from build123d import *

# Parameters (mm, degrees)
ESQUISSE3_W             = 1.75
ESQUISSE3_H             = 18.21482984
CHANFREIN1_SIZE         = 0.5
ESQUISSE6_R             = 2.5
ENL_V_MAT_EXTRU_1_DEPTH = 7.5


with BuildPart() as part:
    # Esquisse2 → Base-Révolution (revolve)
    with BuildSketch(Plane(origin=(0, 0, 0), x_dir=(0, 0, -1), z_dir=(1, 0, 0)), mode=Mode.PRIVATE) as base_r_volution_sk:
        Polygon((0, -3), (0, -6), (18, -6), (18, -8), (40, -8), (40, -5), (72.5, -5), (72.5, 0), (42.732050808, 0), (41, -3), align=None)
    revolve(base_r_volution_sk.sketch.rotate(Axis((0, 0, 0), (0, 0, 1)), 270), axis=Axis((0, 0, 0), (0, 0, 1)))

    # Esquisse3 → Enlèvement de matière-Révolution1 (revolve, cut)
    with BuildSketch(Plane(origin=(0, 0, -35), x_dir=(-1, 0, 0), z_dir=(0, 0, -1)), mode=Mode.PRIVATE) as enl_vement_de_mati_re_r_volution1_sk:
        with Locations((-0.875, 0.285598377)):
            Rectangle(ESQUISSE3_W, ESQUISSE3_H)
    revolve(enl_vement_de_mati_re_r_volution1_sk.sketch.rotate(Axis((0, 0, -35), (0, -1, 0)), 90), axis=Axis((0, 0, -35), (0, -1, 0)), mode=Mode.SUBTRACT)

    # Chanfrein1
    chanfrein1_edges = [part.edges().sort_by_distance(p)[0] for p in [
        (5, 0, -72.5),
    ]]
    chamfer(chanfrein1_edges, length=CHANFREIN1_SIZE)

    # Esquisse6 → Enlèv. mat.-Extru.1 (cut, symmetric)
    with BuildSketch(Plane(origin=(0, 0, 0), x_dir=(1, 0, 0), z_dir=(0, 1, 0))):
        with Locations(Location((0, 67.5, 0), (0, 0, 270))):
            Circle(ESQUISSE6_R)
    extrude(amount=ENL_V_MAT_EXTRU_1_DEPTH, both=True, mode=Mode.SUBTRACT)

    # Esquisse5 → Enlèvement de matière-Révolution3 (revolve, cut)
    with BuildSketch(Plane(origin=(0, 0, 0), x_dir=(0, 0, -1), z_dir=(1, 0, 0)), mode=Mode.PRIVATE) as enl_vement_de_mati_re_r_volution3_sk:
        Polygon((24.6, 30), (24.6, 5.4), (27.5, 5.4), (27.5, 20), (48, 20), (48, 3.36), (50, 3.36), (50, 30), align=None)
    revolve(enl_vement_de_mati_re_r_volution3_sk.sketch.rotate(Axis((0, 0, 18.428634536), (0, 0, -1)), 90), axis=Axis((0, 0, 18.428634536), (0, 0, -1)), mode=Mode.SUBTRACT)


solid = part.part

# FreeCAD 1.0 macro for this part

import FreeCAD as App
import Part
import Sketcher
from FreeCAD import Vector
Q = App.Units.Quantity


def edges_at(feature, points):
    """Names of the edges that pass closest to the given points."""
    edges = feature.Shape.Edges
    near = lambda p: min(range(len(edges)), key=lambda i: edges[i].distToShape(Part.Vertex(*p))[0])
    return sorted({f"Edge{near(p) + 1}" for p in points})


def add_polygon(sketch, points):
    """Adds a closed chain of lines whose ends are joined by coincident constraints."""
    first, n = sketch.GeometryCount, len(points)
    for a, b in zip(points, points[1:] + points[:1]):
        sketch.addGeometry(Part.LineSegment(App.Vector(*a, 0), App.Vector(*b, 0)), False)
    for i in range(n):
        sketch.addConstraint(Sketcher.Constraint("Coincident", first + i, 2, first + (i + 1) % n, 1))

doc = App.newDocument("Part")
body = doc.addObject("PartDesign::Body", "Body")

# Sketch on YZ plane
sketch1 = body.newObject("Sketcher::SketchObject", "Sketch")
sketch1.AttachmentSupport = (doc.getObject("YZ_Plane"), [""])
sketch1.MapMode = "FlatFace"
add_polygon(sketch1, [(-3, 0), (-6, 0), (-6, -18), (-8, -18), (-8, -40), (-5, -40), (-5, -72.5), (0, -72.5), (0, -42.7), (-3, -41)])  # lines 0-9
sketch1.addConstraint([
    Sketcher.Constraint("Horizontal", 0),
    Sketcher.Constraint("Vertical", 1),
    Sketcher.Constraint("Horizontal", 2),
    Sketcher.Constraint("Vertical", 3),
    Sketcher.Constraint("Horizontal", 4),
    Sketcher.Constraint("Vertical", 5),
    Sketcher.Constraint("Horizontal", 6),
    Sketcher.Constraint("Vertical", 7),
    Sketcher.Constraint("Vertical", 9),
    Sketcher.Constraint("PointOnObject", 0, 2, -1),
    Sketcher.Constraint("PointOnObject", 6, 2, -2),
    Sketcher.Constraint("Equal", 0, 4),
    Sketcher.Constraint("DistanceX", 0, 2, 0, 1, Q("3 mm")),
    Sketcher.Constraint("DistanceX", 2, 2, 2, 1, Q("2 mm")),
    Sketcher.Constraint("DistanceX", 6, 1, 6, 2, Q("5 mm")),
    Sketcher.Constraint("DistanceY", 1, 2, 1, 1, Q("18 mm")),
    Sketcher.Constraint("DistanceY", 3, 2, 3, 1, Q("22 mm")),
    Sketcher.Constraint("DistanceY", 9, 1, 9, 2, Q("41 mm")),
    Sketcher.Constraint("Angle", 8, Q("150 deg")),
    Sketcher.Constraint("DistanceY", 5, 2, 5, 1, Q("32.5 mm")),
])
revolution = body.newObject("PartDesign::Revolution", "Revolution")
revolution.Profile = sketch1
revolution.ReferenceAxis = (sketch1, ["V_Axis"])
revolution.Angle = 360

# Sketch on XY plane
sketch2 = body.newObject("Sketcher::SketchObject", "Sketch001")
sketch2.AttachmentSupport = (doc.getObject("XY_Plane"), [""])
sketch2.MapMode = "FlatFace"
sketch2.AttachmentOffset = App.Placement(Vector(0, 0, -35), App.Rotation())
add_polygon(sketch2, [(1.8, 9.4), (1.8, -8.8), (0, -8.8), (0, 9.4)])  # lines 0-3
sketch2.addConstraint([
    Sketcher.Constraint("Vertical", 0),
    Sketcher.Constraint("Horizontal", 1),
    Sketcher.Constraint("Vertical", 2),
    Sketcher.Constraint("Horizontal", 3),
    Sketcher.Constraint("PointOnObject", 1, 2, -2),
    Sketcher.Constraint("DistanceX", 1, 2, 1, 1, Q("1.75 mm")),
    Sketcher.Constraint("DistanceY", 0, 2, 0, 1, Q("18.21483 mm")),
    Sketcher.Constraint("DistanceY", 0, 2, -1, 1, Q("8.821817 mm")),
])
groove = body.newObject("PartDesign::Groove", "Groove")
groove.Profile = sketch2
groove.ReferenceAxis = (sketch2, ["V_Axis"])
groove.Angle = 360
doc.recompute()

chamfer = body.newObject("PartDesign::Chamfer", "Chamfer")
chamfer.Base = (groove, edges_at(groove, [(5, 0, -72.5)]))
chamfer.Size = 0.5

# Sketch on XZ plane
sketch3 = body.newObject("Sketcher::SketchObject", "Sketch002")
sketch3.AttachmentSupport = (doc.getObject("XZ_Plane"), [""])
sketch3.MapMode = "FlatFace"
sketch3.addGeometry(Part.Circle(Vector(0, -67.5, 0), Vector(0, 0, 1), 2.5), False)
sketch3.addConstraint([
    Sketcher.Constraint("PointOnObject", 0, 3, -2),
    Sketcher.Constraint("Diameter", 0, Q("5 mm")),
    Sketcher.Constraint("DistanceY", 0, 3, -1, 1, Q("67.5 mm")),
])
pocket1 = body.newObject("PartDesign::Pocket", "Pocket")
pocket1.Profile = sketch3
pocket1.Length = 15
pocket1.Midplane = True

# Sketch on YZ plane
sketch4 = body.newObject("Sketcher::SketchObject", "Sketch003")
sketch4.AttachmentSupport = (doc.getObject("YZ_Plane"), [""])
sketch4.MapMode = "FlatFace"
add_polygon(sketch4, [(30, -24.6), (5.4, -24.6), (5.4, -27.5), (20, -27.5), (20, -48), (3.4, -48), (3.4, -50), (30, -50)])  # lines 0-7
sketch4.addConstraint([
    Sketcher.Constraint("Horizontal", 0),
    Sketcher.Constraint("Vertical", 1),
    Sketcher.Constraint("Horizontal", 2),
    Sketcher.Constraint("Vertical", 3),
    Sketcher.Constraint("Horizontal", 4),
    Sketcher.Constraint("Vertical", 5),
    Sketcher.Constraint("Horizontal", 6),
    Sketcher.Constraint("Vertical", 7),
    Sketcher.Constraint("DistanceY", 5, 2, 5, 1, Q("2 mm")),
    Sketcher.Constraint("DistanceX", 0, 2, 0, 1, Q("24.6 mm")),
    Sketcher.Constraint("DistanceX", 2, 1, 2, 2, Q("14.6 mm")),
    Sketcher.Constraint("DistanceY", 1, 2, 1, 1, Q("2.9 mm")),
    Sketcher.Constraint("DistanceY", 3, 2, 3, 1, Q("20.5 mm")),
    Sketcher.Constraint("DistanceX", -1, 1, 2, 2, Q("20 mm")),
    Sketcher.Constraint("DistanceY", 3, 2, -1, 1, Q("48 mm")),
    Sketcher.Constraint("DistanceX", 4, 2, 4, 1, Q("16.64 mm")),
])
groove2 = body.newObject("PartDesign::Groove", "Groove001")
groove2.Profile = sketch4
groove2.ReferenceAxis = (sketch4, ["V_Axis"])
groove2.Angle = 360

doc.recompute()
